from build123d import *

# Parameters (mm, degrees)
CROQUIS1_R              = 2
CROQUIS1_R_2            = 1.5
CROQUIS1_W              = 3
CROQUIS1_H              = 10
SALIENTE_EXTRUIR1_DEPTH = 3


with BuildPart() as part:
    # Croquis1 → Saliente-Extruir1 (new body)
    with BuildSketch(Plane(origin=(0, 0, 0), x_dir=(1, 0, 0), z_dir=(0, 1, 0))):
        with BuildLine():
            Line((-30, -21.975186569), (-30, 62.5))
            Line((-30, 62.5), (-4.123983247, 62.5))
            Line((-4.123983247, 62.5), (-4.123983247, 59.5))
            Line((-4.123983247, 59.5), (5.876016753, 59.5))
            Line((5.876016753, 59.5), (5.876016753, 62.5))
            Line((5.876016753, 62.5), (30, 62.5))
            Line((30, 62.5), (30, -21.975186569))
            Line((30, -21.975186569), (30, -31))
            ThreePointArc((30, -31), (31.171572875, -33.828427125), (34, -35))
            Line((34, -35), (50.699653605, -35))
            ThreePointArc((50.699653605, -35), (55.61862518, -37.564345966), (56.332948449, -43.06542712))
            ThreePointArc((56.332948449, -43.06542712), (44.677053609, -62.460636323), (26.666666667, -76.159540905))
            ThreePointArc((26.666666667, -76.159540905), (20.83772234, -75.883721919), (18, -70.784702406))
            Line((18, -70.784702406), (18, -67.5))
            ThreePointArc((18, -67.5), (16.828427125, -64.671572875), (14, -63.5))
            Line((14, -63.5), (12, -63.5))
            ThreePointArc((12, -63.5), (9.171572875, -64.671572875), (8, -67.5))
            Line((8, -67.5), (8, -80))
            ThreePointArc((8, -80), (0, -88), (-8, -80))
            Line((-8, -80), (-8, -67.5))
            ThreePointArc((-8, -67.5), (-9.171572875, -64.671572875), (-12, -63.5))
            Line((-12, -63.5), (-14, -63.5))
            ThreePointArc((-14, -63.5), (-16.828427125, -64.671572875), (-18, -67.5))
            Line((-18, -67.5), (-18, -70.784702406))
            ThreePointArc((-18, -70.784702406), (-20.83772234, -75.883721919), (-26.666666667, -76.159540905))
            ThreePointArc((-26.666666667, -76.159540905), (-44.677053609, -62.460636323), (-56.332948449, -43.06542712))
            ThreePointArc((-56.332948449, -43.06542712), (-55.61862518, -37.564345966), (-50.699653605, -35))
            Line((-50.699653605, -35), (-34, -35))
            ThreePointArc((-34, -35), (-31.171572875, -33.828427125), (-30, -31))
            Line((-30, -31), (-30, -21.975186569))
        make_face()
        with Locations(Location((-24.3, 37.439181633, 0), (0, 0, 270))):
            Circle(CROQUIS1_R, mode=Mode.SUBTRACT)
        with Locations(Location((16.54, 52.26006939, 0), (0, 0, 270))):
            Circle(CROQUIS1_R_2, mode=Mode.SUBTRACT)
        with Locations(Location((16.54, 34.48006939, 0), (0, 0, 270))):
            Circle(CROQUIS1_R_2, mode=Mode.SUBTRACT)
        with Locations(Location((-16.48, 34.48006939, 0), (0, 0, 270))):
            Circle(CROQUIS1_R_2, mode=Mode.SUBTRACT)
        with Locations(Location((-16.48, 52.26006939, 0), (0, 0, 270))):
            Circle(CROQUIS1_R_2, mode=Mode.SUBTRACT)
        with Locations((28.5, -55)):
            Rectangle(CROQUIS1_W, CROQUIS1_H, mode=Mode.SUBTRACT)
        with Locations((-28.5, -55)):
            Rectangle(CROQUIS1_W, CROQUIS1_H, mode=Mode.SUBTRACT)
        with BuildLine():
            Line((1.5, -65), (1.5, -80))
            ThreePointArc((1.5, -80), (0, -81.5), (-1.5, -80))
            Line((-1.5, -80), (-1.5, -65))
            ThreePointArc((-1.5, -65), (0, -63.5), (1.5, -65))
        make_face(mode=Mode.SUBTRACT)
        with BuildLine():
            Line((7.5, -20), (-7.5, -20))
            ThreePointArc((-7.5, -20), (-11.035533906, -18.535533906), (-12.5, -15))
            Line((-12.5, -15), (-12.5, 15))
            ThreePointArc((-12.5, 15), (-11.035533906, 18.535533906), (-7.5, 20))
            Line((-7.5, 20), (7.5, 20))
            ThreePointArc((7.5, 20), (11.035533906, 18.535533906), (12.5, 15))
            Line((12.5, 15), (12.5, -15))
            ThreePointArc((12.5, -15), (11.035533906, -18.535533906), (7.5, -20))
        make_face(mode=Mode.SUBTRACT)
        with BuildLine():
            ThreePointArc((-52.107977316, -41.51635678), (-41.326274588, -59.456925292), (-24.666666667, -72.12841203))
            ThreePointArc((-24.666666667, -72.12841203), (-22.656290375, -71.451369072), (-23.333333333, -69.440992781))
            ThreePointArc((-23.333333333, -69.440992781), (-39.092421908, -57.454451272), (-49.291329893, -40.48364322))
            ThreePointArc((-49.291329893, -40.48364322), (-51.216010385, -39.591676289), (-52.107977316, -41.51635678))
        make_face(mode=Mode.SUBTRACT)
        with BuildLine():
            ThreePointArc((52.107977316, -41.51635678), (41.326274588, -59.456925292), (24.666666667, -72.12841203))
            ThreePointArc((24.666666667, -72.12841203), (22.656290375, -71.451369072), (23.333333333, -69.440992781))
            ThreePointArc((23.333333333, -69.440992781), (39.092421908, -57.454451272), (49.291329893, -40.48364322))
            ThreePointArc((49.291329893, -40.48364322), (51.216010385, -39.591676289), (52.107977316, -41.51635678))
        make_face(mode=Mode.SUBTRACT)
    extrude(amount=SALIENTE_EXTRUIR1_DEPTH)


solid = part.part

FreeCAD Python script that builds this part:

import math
import FreeCAD as App
import Part
import Sketcher
from FreeCAD import Vector


def add_polygon(sketch, points):
    """Adds a closed chain of lines whose ends are joined by coincident constraints."""
    first, n = sketch.GeometryCount, len(points)
    for a, b in zip(points, points[1:] + points[:1]):
        sketch.addGeometry(Part.LineSegment(App.Vector(*a, 0), App.Vector(*b, 0)), False)
    for i in range(n):
        sketch.addConstraint(Sketcher.Constraint("Coincident", first + i, 2, first + (i + 1) % n, 1))

doc = App.newDocument("Part")
body = doc.addObject("PartDesign::Body", "Body")

sketch1 = body.newObject("Sketcher::SketchObject", "Sketch")
sketch1.AttachmentSupport = (doc.getObject("XZ_Plane"), [""])
sketch1.MapMode = "FlatFace"
sketch1.addGeometry(Part.LineSegment(Vector(-4.1, -62.5, 0), Vector(-30, -62.5, 0)), False)
sketch1.addGeometry(Part.LineSegment(Vector(-30, -62.5, 0), Vector(-30, 31, 0)), False)
sketch1.addGeometry(Part.ArcOfCircle(Part.Circle(Vector(-34, 31, 0), Vector(0, 0, 1), 4), math.radians(0), math.radians(90)), False)
sketch1.addGeometry(Part.LineSegment(Vector(-34, 35, 0), Vector(-50.7, 35, 0)), False)
sketch1.addGeometry(Part.ArcOfCircle(Part.Circle(Vector(-50.7, 41, 0), Vector(0, 0, 1), 6), math.radians(160), math.radians(270)), False)
sketch1.addGeometry(Part.ArcOfCircle(Part.Circle(Vector(0, 22.4, 0), Vector(0, 0, 1), 60), math.radians(116), math.radians(160)), False)
sketch1.addGeometry(Part.ArcOfCircle(Part.Circle(Vector(-24, 70.8, 0), Vector(0, 0, 1), 6), math.radians(0), math.radians(116)), False)
sketch1.addGeometry(Part.LineSegment(Vector(-18, 70.8, 0), Vector(-18, 67.5, 0)), False)
sketch1.addGeometry(Part.ArcOfCircle(Part.Circle(Vector(-14, 67.5, 0), Vector(0, 0, 1), 4), math.radians(180), math.radians(270)), False)
sketch1.addGeometry(Part.LineSegment(Vector(-14, 63.5, 0), Vector(-12, 63.5, 0)), False)
sketch1.addGeometry(Part.ArcOfCircle(Part.Circle(Vector(-12, 67.5, 0), Vector(0, 0, 1), 4), math.radians(-90), math.radians(0)), False)
sketch1.addGeometry(Part.LineSegment(Vector(-8, 67.5, 0), Vector(-8, 80, 0)), False)
sketch1.addGeometry(Part.ArcOfCircle(Part.Circle(Vector(0, 80, 0), Vector(0, 0, 1), 8), math.radians(0), math.radians(180)), False)
sketch1.addGeometry(Part.LineSegment(Vector(8, 80, 0), Vector(8, 67.5, 0)), False)
sketch1.addGeometry(Part.ArcOfCircle(Part.Circle(Vector(12, 67.5, 0), Vector(0, 0, 1), 4), math.radians(180), math.radians(270)), False)
sketch1.addGeometry(Part.LineSegment(Vector(12, 63.5, 0), Vector(14, 63.5, 0)), False)
sketch1.addGeometry(Part.ArcOfCircle(Part.Circle(Vector(14, 67.5, 0), Vector(0, 0, 1), 4), math.radians(-90), math.radians(0)), False)
sketch1.addGeometry(Part.LineSegment(Vector(18, 67.5, 0), Vector(18, 70.8, 0)), False)
sketch1.addGeometry(Part.ArcOfCircle(Part.Circle(Vector(24, 70.8, 0), Vector(0, 0, 1), 6), math.radians(64), math.radians(180)), False)
sketch1.addGeometry(Part.ArcOfCircle(Part.Circle(Vector(0, 22.4, 0), Vector(0, 0, 1), 60), math.radians(20), math.radians(64)), False)
sketch1.addGeometry(Part.ArcOfCircle(Part.Circle(Vector(50.7, 41, 0), Vector(0, 0, 1), 6), math.radians(-90), math.radians(20)), False)
sketch1.addGeometry(Part.LineSegment(Vector(50.7, 35, 0), Vector(34, 35, 0)), False)
sketch1.addGeometry(Part.ArcOfCircle(Part.Circle(Vector(34, 31, 0), Vector(0, 0, 1), 4), math.radians(90), math.radians(180)), False)
sketch1.addGeometry(Part.LineSegment(Vector(30, 31, 0), Vector(30, -62.5, 0)), False)
sketch1.addGeometry(Part.LineSegment(Vector(30, -62.5, 0), Vector(5.9, -62.5, 0)), False)
sketch1.addGeometry(Part.LineSegment(Vector(5.9, -62.5, 0), Vector(5.9, -59.5, 0)), False)
sketch1.addGeometry(Part.LineSegment(Vector(5.9, -59.5, 0), Vector(-4.1, -59.5, 0)), False)
sketch1.addGeometry(Part.LineSegment(Vector(-4.1, -59.5, 0), Vector(-4.1, -62.5, 0)), False)
sketch1.addGeometry(Part.ArcOfCircle(Part.Circle(Vector(0, 22.4, 0), Vector(0, 0, 1), 55.5), math.radians(20), math.radians(64)), False)
sketch1.addGeometry(Part.ArcOfCircle(Part.Circle(Vector(24, 70.8, 0), Vector(0, 0, 1), 1.5), math.radians(64), math.radians(244)), False)
sketch1.addGeometry(Part.ArcOfCircle(Part.Circle(Vector(0, 22.4, 0), Vector(0, 0, 1), 52.5), math.radians(20), math.radians(64)), False)
sketch1.addGeometry(Part.ArcOfCircle(Part.Circle(Vector(50.7, 41, 0), Vector(0, 0, 1), 1.5), math.radians(-160), math.radians(20)), False)
add_polygon(sketch1, [(27, 60), (27, 50), (30, 50), (30, 60)])
sketch1.addGeometry(Part.LineSegment(Vector(1.5, 65, 0), Vector(1.5, 80, 0)), False)
sketch1.addGeometry(Part.ArcOfCircle(Part.Circle(Vector(0, 80, 0), Vector(0, 0, 1), 1.5), math.radians(0), math.radians(180)), False)
sketch1.addGeometry(Part.LineSegment(Vector(-1.5, 80, 0), Vector(-1.5, 65, 0)), False)
sketch1.addGeometry(Part.ArcOfCircle(Part.Circle(Vector(0, 65, 0), Vector(0, 0, 1), 1.5), math.radians(180), math.radians(360)), False)
add_polygon(sketch1, [(-30, 60), (-30, 50), (-27, 50), (-27, 60)])
sketch1.addGeometry(Part.ArcOfCircle(Part.Circle(Vector(-50.7, 41, 0), Vector(0, 0, 1), 1.5), math.radians(160), math.radians(340)), False)
sketch1.addGeometry(Part.ArcOfCircle(Part.Circle(Vector(0, 22.4, 0), Vector(0, 0, 1), 52.5), math.radians(116), math.radians(160)), False)
sketch1.addGeometry(Part.ArcOfCircle(Part.Circle(Vector(-24, 70.8, 0), Vector(0, 0, 1), 1.5), math.radians(-64), math.radians(116)), False)
sketch1.addGeometry(Part.ArcOfCircle(Part.Circle(Vector(0, 22.4, 0), Vector(0, 0, 1), 55.5), math.radians(116), math.radians(160)), False)
sketch1.addGeometry(Part.Circle(Vector(16.5, -34.5, 0), Vector(0, 0, 1), 1.5), False)
sketch1.addGeometry(Part.Circle(Vector(16.5, -52.3, 0), Vector(0, 0, 1), 1.5), False)
sketch1.addGeometry(Part.LineSegment(Vector(7.5, 20, 0), Vector(-7.5, 20, 0)), False)
sketch1.addGeometry(Part.ArcOfCircle(Part.Circle(Vector(-7.5, 15, 0), Vector(0, 0, 1), 5), math.radians(90), math.radians(180)), False)
sketch1.addGeometry(Part.LineSegment(Vector(-12.5, 15, 0), Vector(-12.5, -15, 0)), False)
sketch1.addGeometry(Part.ArcOfCircle(Part.Circle(Vector(-7.5, -15, 0), Vector(0, 0, 1), 5), math.radians(180), math.radians(270)), False)
sketch1.addGeometry(Part.LineSegment(Vector(-7.5, -20, 0), Vector(7.5, -20, 0)), False)
sketch1.addGeometry(Part.ArcOfCircle(Part.Circle(Vector(7.5, -15, 0), Vector(0, 0, 1), 5), math.radians(-90), math.radians(0)), False)
sketch1.addGeometry(Part.LineSegment(Vector(12.5, -15, 0), Vector(12.5, 15, 0)), False)
sketch1.addGeometry(Part.ArcOfCircle(Part.Circle(Vector(7.5, 15, 0), Vector(0, 0, 1), 5), math.radians(0), math.radians(90)), False)
sketch1.addGeometry(Part.Circle(Vector(-16.5, -34.5, 0), Vector(0, 0, 1), 1.5), False)
sketch1.addGeometry(Part.Circle(Vector(-24.3, -37.4, 0), Vector(0, 0, 1), 2), False)
sketch1.addGeometry(Part.Circle(Vector(-16.5, -52.3, 0), Vector(0, 0, 1), 1.5), False)
sketch1.addConstraint([
    Sketcher.Constraint("Coincident", 0, 2, 1, 1),
    Sketcher.Constraint("Tangent", 1, 2, 2, 1),
    Sketcher.Constraint("Tangent", 2, 2, 3, 1),
    Sketcher.Constraint("Tangent", 3, 2, 4, 2),
    Sketcher.Constraint("Tangent", 4, 1, 5, 2),
    Sketcher.Constraint("Tangent", 5, 1, 6, 2),
    Sketcher.Constraint("Tangent", 6, 1, 7, 1),
    Sketcher.Constraint("Tangent", 7, 2, 8, 1),
    Sketcher.Constraint("Tangent", 8, 2, 9, 1),
    Sketcher.Constraint("Tangent", 9, 2, 10, 1),
    Sketcher.Constraint("Tangent", 10, 2, 11, 1),
    Sketcher.Constraint("Tangent", 11, 2, 12, 2),
    Sketcher.Constraint("Tangent", 12, 1, 13, 1),
    Sketcher.Constraint("Tangent", 13, 2, 14, 1),
    Sketcher.Constraint("Tangent", 14, 2, 15, 1),
    Sketcher.Constraint("Tangent", 15, 2, 16, 1),
    Sketcher.Constraint("Tangent", 16, 2, 17, 1),
    Sketcher.Constraint("Tangent", 17, 2, 18, 2),
    Sketcher.Constraint("Tangent", 18, 1, 19, 2),
    Sketcher.Constraint("Tangent", 19, 1, 20, 2),
    Sketcher.Constraint("Tangent", 20, 1, 21, 1),
    Sketcher.Constraint("Tangent", 21, 2, 22, 1),
    Sketcher.Constraint("Tangent", 22, 2, 23, 1),
    Sketcher.Constraint("Coincident", 23, 2, 24, 1),
    Sketcher.Constraint("Coincident", 24, 2, 25, 1),
    Sketcher.Constraint("Coincident", 25, 2, 26, 1),
    Sketcher.Constraint("Coincident", 26, 2, 27, 1),
    Sketcher.Constraint("Coincident", 27, 2, 0, 1),
    Sketcher.Constraint("Tangent", 28, 2, 29, 1),
    Sketcher.Constraint("Tangent", 29, 2, 30, 2),
    Sketcher.Constraint("Tangent", 30, 1, 31, 1),
    Sketcher.Constraint("Tangent", 31, 2, 28, 1),
    Sketcher.Constraint("Tangent", 36, 2, 37, 1),
    Sketcher.Constraint("Tangent", 37, 2, 38, 1),
    Sketcher.Constraint("Tangent", 38, 2, 39, 1),
    Sketcher.Constraint("Tangent", 39, 2, 36, 1),
    Sketcher.Constraint("Tangent", 44, 2, 45, 2),
    Sketcher.Constraint("Tangent", 45, 1, 46, 1),
    Sketcher.Constraint("Tangent", 46, 2, 47, 1),
    Sketcher.Constraint("Tangent", 47, 2, 44, 1),
    Sketcher.Constraint("Tangent", 50, 2, 51, 1),
    Sketcher.Constraint("Tangent", 51, 2, 52, 1),
    Sketcher.Constraint("Tangent", 52, 2, 53, 1),
    Sketcher.Constraint("Tangent", 53, 2, 54, 1),
    Sketcher.Constraint("Tangent", 54, 2, 55, 1),
    Sketcher.Constraint("Tangent", 55, 2, 56, 1),
    Sketcher.Constraint("Tangent", 56, 2, 57, 1),
    Sketcher.Constraint("Tangent", 57, 2, 50, 1),
    Sketcher.Constraint("Horizontal", 0),
    Sketcher.Constraint("Vertical", 1),
    Sketcher.Constraint("Horizontal", 3),
    Sketcher.Constraint("Vertical", 7),
    Sketcher.Constraint("Horizontal", 9),
    Sketcher.Constraint("Vertical", 11),
    Sketcher.Constraint("Vertical", 13),
    Sketcher.Constraint("Horizontal", 15),
    Sketcher.Constraint("Vertical", 17),
    Sketcher.Constraint("Horizontal", 21),
    Sketcher.Constraint("Vertical", 23),
    Sketcher.Constraint("Horizontal", 24),
    Sketcher.Constraint("Vertical", 25),
    Sketcher.Constraint("Horizontal", 26),
    Sketcher.Constraint("Vertical", 27),
    Sketcher.Constraint("Vertical", 32),
    Sketcher.Constraint("Horizontal", 33),
    Sketcher.Constraint("Vertical", 34),
    Sketcher.Constraint("Horizontal", 35),
    Sketcher.Constraint("Vertical", 36),
    Sketcher.Constraint("Vertical", 38),
    Sketcher.Constraint("Vertical", 40),
    Sketcher.Constraint("Horizontal", 41),
    Sketcher.Constraint("Vertical", 42),
    Sketcher.Constraint("Horizontal", 43),
    Sketcher.Constraint("Horizontal", 50),
    Sketcher.Constraint("Vertical", 52),
    Sketcher.Constraint("Horizontal", 54),
    Sketcher.Constraint("Vertical", 56),
    Sketcher.Constraint("Coincident", 19, 3, 5, 3),
    Sketcher.Constraint("Coincident", 28, 3, 5, 3),
    Sketcher.Constraint("Coincident", 29, 3, 18, 3),
    Sketcher.Constraint("Coincident", 30, 3, 5, 3),
    Sketcher.Constraint("Coincident", 31, 3, 20, 3),
    Sketcher.Constraint("Coincident", 37, 3, 12, 3),
    Sketcher.Constraint("Coincident", 44, 3, 4, 3),
    Sketcher.Constraint("Coincident", 45, 3, 5, 3),
    Sketcher.Constraint("Coincident", 46, 3, 6, 3),
    Sketcher.Constraint("Coincident", 47, 3, 5, 3),
    Sketcher.Constraint("Equal", 2, 8),
    Sketcher.Constraint("Equal", 8, 10),
    Sketcher.Constraint("Equal", 10, 14),
    Sketcher.Constraint("Equal", 14, 16),
    Sketcher.Constraint("Equal", 6, 18),
    Sketcher.Constraint("Equal", 5, 19),
    Sketcher.Constraint("Equal", 16, 22),
    Sketcher.Constraint("Equal", 31, 37),
    Sketcher.Constraint("Equal", 39, 44),
    Sketcher.Constraint("Equal", 46, 48),
    Sketcher.Constraint("Equal", 48, 49),
    Sketcher.Constraint("Equal", 51, 53),
    Sketcher.Constraint("Equal", 53, 55),
    Sketcher.Constraint("Equal", 55, 57),
    Sketcher.Constraint("Equal", 49, 58),
    Sketcher.Constraint("Equal", 58, 60),
    Sketcher.Constraint("Symmetric", 51, 3, 55, 3, -1, 1),
    Sketcher.Constraint("Symmetric", 10, 3, 14, 3, -2),
    Sketcher.Constraint("Symmetric", 6, 3, 18, 3, -2),
    Sketcher.Constraint("Symmetric", 2, 3, 22, 3, -2),
    Sketcher.Constraint("Symmetric", 33, 2, 40, 2, -2),
    Sketcher.Constraint("Symmetric", 35, 2, 42, 2, -2),
    Sketcher.Constraint("Horizontal", 48, 3, 58, 3),
    Sketcher.Constraint("Horizontal", 49, 3, 60, 3),
    Sketcher.Constraint("Horizontal", 0, 2, 23, 2),
    Sketcher.Constraint("Vertical", 48, 3, 49, 3),
    Sketcher.Constraint("Vertical", 58, 3, 60, 3),
    Sketcher.Constraint("Vertical", 23, 2, 33, 2),
    Sketcher.Constraint("Equal", 43, 25),
    Sketcher.Constraint("Equal", 26, 32),
    Sketcher.Constraint("Equal", 54, 36),
    Sketcher.Constraint("Diameter", 48, 3.0),
    Sketcher.Constraint("Diameter", 59, 4.0),
    Sketcher.Constraint("Radius", 2, 4.0),
    Sketcher.Constraint("Radius", 4, 6.0),
    Sketcher.Constraint("Radius", 5, 60.0),
    Sketcher.Constraint("Radius", 12, 8.0),
    Sketcher.Constraint("Radius", 51, 5.0),
    Sketcher.Constraint("DistanceX", 9, 1, 9, 2, 2.0),
    Sketcher.Constraint("DistanceX", 26, 2, 26, 1, 10.0),
    Sketcher.Constraint("DistanceX", 33, 1, 33, 2, 3.0),
    Sketcher.Constraint("DistanceX", 50, 2, 50, 1, 15.0),
    Sketcher.Constraint("DistanceY", 52, 2, 52, 1, 30.0),
    Sketcher.Constraint("DistanceY", 1, 1, 1, 2, 93.5),
    Sketcher.Constraint("DistanceY", 11, 1, 11, 2, 12.5),
    Sketcher.Constraint("DistanceX", 2, 3, -1, 1, 34.0),
    Sketcher.Constraint("DistanceY", -1, 1, 2, 3, 31.0),
    Sketcher.Constraint("DistanceY", -1, 1, 12, 3, 80.0),
    Sketcher.Constraint("DistanceY", -1, 1, 32, 2, 50.0),
    Sketcher.Constraint("DistanceX", 59, 3, -1, 1, 24.3),
    Sketcher.Constraint("DistanceX", -1, 1, 48, 3, 16.54),
    Sketcher.Constraint("DistanceX", 58, 3, -1, 1, 16.48),
    Sketcher.Constraint("DistanceX", 0, 2, 0, 1, 25.876017),
    Sketcher.Constraint("DistanceX", 3, 2, 3, 1, 16.699654),
    Sketcher.Constraint("DistanceY", 48, 3, -1, 1, 34.480069),
    Sketcher.Constraint("DistanceY", 49, 3, -1, 1, 52.260069),
    Sketcher.Constraint("DistanceY", 59, 3, -1, 1, 37.439182),
])
pad1 = body.newObject("PartDesign::Pad", "Pad")
pad1.Profile = sketch1
pad1.Length = 3
pad1.Reversed = True

doc.recompute()
